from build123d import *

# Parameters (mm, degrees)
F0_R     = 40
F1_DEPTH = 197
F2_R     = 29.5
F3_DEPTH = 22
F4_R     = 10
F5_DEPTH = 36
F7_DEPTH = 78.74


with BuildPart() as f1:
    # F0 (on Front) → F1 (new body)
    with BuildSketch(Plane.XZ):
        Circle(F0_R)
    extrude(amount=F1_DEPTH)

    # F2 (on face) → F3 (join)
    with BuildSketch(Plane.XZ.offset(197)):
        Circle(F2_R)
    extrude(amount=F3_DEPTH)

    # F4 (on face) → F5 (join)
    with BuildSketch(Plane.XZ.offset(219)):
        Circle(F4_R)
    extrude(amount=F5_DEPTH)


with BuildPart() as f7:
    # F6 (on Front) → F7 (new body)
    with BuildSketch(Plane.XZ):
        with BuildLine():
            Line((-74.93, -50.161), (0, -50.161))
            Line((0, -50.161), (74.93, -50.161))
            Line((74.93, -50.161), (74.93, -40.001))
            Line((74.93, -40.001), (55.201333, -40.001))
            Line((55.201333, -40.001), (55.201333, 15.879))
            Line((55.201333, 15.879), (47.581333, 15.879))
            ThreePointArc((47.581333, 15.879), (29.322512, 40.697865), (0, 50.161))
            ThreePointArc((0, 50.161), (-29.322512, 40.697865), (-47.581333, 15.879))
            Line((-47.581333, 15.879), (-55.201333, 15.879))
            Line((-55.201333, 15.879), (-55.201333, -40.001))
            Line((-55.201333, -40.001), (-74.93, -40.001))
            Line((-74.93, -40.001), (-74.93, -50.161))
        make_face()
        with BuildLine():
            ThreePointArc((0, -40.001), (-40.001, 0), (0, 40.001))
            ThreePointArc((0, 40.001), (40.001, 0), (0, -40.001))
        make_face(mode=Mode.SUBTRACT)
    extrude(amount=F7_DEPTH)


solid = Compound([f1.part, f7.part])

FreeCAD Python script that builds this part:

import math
import FreeCAD as App
import Part
import Sketcher

V = App.Vector
Q = App.Units.Quantity

doc = App.newDocument("Part")
params = doc.addObject("Spreadsheet::Sheet", "Params")
for row, (alias, value) in enumerate([
    ("sketch1_diameter", "80 mm"),
    ("pad1_length", "197 mm"),
    ("sketch2_diameter", "59 mm"),
    ("pad2_length", "22 mm"),
    ("sketch3_diameter", "20 mm"),
    ("pad3_length", "36 mm"),
    ("sketch4_width", "149.86 mm"),
    ("sketch4_width2", "7.62 mm"),
    ("sketch4_height", "10.16 mm"),
    ("sketch4_height2", "55.88 mm"),
    ("pad4_length", "78.74 mm"),
], start=1):
    params.set(f"A{row}", alias)
    params.set(f"B{row}", "=" + value)
    params.setAlias(f"B{row}", alias)

body = doc.addObject("PartDesign::Body", "Body")

# Sketch on XZ plane
sketch1 = doc.addObject("Sketcher::SketchObject", "Sketch")
body.addObject(sketch1)
sketch1.AttachmentSupport = (doc.XZ_Plane, [""])
sketch1.MapMode = "FlatFace"
sketch1.addGeometry(Part.Circle(V(0, 0, 0), V(0, 0, 1), 40), False)
sketch1.addConstraint(Sketcher.Constraint("Coincident", 0, 3, -1, 1))
sketch1.addConstraint(Sketcher.Constraint("Diameter", 0, Q("80 mm")))
sketch1.setExpression("Constraints[1]", "Params.sketch1_diameter")
pad1 = doc.addObject("PartDesign::Pad", "Pad")
body.addObject(pad1)
pad1.Profile = sketch1
pad1.setExpression("Length", "Params.pad1_length")

# Sketch on XZ plane
sketch2 = doc.addObject("Sketcher::SketchObject", "Sketch001")
body.addObject(sketch2)
sketch2.AttachmentSupport = (doc.XZ_Plane, [""])
sketch2.MapMode = "FlatFace"
sketch2.AttachmentOffset = App.Placement(V(0, 0, 197), App.Rotation())
sketch2.addGeometry(Part.Circle(V(0, 0, 0), V(0, 0, 1), 30), False)
sketch2.addConstraint(Sketcher.Constraint("Coincident", 0, 3, -1, 1))
sketch2.addConstraint(Sketcher.Constraint("Diameter", 0, Q("59 mm")))
sketch2.setExpression("Constraints[1]", "Params.sketch2_diameter")
pad2 = doc.addObject("PartDesign::Pad", "Pad001")
body.addObject(pad2)
pad2.Profile = sketch2
pad2.setExpression("Length", "Params.pad2_length")

# Sketch on XZ plane
sketch3 = doc.addObject("Sketcher::SketchObject", "Sketch002")
body.addObject(sketch3)
sketch3.AttachmentSupport = (doc.XZ_Plane, [""])
sketch3.MapMode = "FlatFace"
sketch3.AttachmentOffset = App.Placement(V(0, 0, 219), App.Rotation())
sketch3.addGeometry(Part.Circle(V(0, 0, 0), V(0, 0, 1), 10), False)
sketch3.addConstraint(Sketcher.Constraint("Coincident", 0, 3, -1, 1))
sketch3.addConstraint(Sketcher.Constraint("Diameter", 0, Q("20 mm")))
sketch3.setExpression("Constraints[1]", "Params.sketch3_diameter")
pad3 = doc.addObject("PartDesign::Pad", "Pad002")
body.addObject(pad3)
pad3.Profile = sketch3
pad3.setExpression("Length", "Params.pad3_length")
body2 = doc.addObject("PartDesign::Body", "Body001")

# Sketch on XZ plane
sketch4 = doc.addObject("Sketcher::SketchObject", "Sketch003")
body2.addObject(sketch4)
sketch4.AttachmentSupport = (doc.getObject("XZ_Plane001"), [""])
sketch4.MapMode = "FlatFace"
sketch4.addGeometry(Part.LineSegment(V(-75, -50, 0), V(75, -50, 0)), False)
sketch4.addGeometry(Part.LineSegment(V(75, -50, 0), V(75, -40, 0)), False)
sketch4.addGeometry(Part.LineSegment(V(75, -40, 0), V(55, -40, 0)), False)
sketch4.addGeometry(Part.LineSegment(V(55, -40, 0), V(55, 16, 0)), False)
sketch4.addGeometry(Part.LineSegment(V(55, 16, 0), V(48, 16, 0)), False)
sketch4.addGeometry(Part.ArcOfCircle(Part.Circle(V(0, 0, 0), V(0, 0, 1), 50), math.radians(18), math.radians(90)), False)
sketch4.addGeometry(Part.ArcOfCircle(Part.Circle(V(0, 0, 0), V(0, 0, 1), 50), math.radians(90), math.radians(162)), False)
sketch4.addGeometry(Part.LineSegment(V(-48, 16, 0), V(-55, 16, 0)), False)
sketch4.addGeometry(Part.LineSegment(V(-55, 16, 0), V(-55, -40, 0)), False)
sketch4.addGeometry(Part.LineSegment(V(-55, -40, 0), V(-75, -40, 0)), False)
sketch4.addGeometry(Part.LineSegment(V(-75, -40, 0), V(-75, -50, 0)), False)
sketch4.addGeometry(Part.Circle(V(0, 0, 0), V(0, 0, 1), 40), False)
sketch4.addConstraint(Sketcher.Constraint("Coincident", 0, 2, 1, 1))
sketch4.addConstraint(Sketcher.Constraint("Coincident", 1, 2, 2, 1))
sketch4.addConstraint(Sketcher.Constraint("Coincident", 2, 2, 3, 1))
sketch4.addConstraint(Sketcher.Constraint("Coincident", 3, 2, 4, 1))
sketch4.addConstraint(Sketcher.Constraint("Coincident", 4, 2, 5, 1))
sketch4.addConstraint(Sketcher.Constraint("Tangent", 5, 2, 6, 1))
sketch4.addConstraint(Sketcher.Constraint("Coincident", 6, 2, 7, 1))
sketch4.addConstraint(Sketcher.Constraint("Coincident", 7, 2, 8, 1))
sketch4.addConstraint(Sketcher.Constraint("Coincident", 8, 2, 9, 1))
sketch4.addConstraint(Sketcher.Constraint("Coincident", 9, 2, 10, 1))
sketch4.addConstraint(Sketcher.Constraint("Coincident", 10, 2, 0, 1))
sketch4.addConstraint(Sketcher.Constraint("Horizontal", 0))
sketch4.addConstraint(Sketcher.Constraint("Vertical", 1))
sketch4.addConstraint(Sketcher.Constraint("Horizontal", 2))
sketch4.addConstraint(Sketcher.Constraint("Vertical", 3))
sketch4.addConstraint(Sketcher.Constraint("Horizontal", 4))
sketch4.addConstraint(Sketcher.Constraint("Horizontal", 7))
sketch4.addConstraint(Sketcher.Constraint("Vertical", 8))
sketch4.addConstraint(Sketcher.Constraint("Horizontal", 9))
sketch4.addConstraint(Sketcher.Constraint("Vertical", 10))
sketch4.addConstraint(Sketcher.Constraint("Coincident", 5, 3, -1, 1))
sketch4.addConstraint(Sketcher.Constraint("Coincident", 11, 3, -1, 1))
sketch4.addConstraint(Sketcher.Constraint("Equal", 5, 6))
sketch4.addConstraint(Sketcher.Constraint("Symmetric", 3, 2, 7, 2, -2))
sketch4.addConstraint(Sketcher.Constraint("Symmetric", 1, 2, 9, 2, -2))
sketch4.addConstraint(Sketcher.Constraint("PointOnObject", 5, 2, -2))
sketch4.addConstraint(Sketcher.Constraint("Diameter", 11, Q("80.002 mm")))
sketch4.addConstraint(Sketcher.Constraint("Radius", 5, Q("50.160999 mm")))
sketch4.addConstraint(Sketcher.Constraint("DistanceX", 0, 1, 0, 2, Q("149.86 mm")))
sketch4.addConstraint(Sketcher.Constraint("DistanceX", 4, 2, 4, 1, Q("7.62 mm")))
sketch4.addConstraint(Sketcher.Constraint("DistanceY", 1, 1, 1, 2, Q("10.16 mm")))
sketch4.addConstraint(Sketcher.Constraint("DistanceY", 3, 1, 3, 2, Q("55.88 mm")))
sketch4.addConstraint(Sketcher.Constraint("DistanceY", 0, 2, -1, 1, Q("50.161 mm")))
sketch4.setExpression("Constraints[28]", "Params.sketch4_width")
sketch4.setExpression("Constraints[29]", "Params.sketch4_width2")
sketch4.setExpression("Constraints[30]", "Params.sketch4_height")
sketch4.setExpression("Constraints[31]", "Params.sketch4_height2")
pad4 = doc.addObject("PartDesign::Pad", "Pad003")
body2.addObject(pad4)
pad4.Profile = sketch4
pad4.setExpression("Length", "Params.pad4_length")

doc.recompute()
